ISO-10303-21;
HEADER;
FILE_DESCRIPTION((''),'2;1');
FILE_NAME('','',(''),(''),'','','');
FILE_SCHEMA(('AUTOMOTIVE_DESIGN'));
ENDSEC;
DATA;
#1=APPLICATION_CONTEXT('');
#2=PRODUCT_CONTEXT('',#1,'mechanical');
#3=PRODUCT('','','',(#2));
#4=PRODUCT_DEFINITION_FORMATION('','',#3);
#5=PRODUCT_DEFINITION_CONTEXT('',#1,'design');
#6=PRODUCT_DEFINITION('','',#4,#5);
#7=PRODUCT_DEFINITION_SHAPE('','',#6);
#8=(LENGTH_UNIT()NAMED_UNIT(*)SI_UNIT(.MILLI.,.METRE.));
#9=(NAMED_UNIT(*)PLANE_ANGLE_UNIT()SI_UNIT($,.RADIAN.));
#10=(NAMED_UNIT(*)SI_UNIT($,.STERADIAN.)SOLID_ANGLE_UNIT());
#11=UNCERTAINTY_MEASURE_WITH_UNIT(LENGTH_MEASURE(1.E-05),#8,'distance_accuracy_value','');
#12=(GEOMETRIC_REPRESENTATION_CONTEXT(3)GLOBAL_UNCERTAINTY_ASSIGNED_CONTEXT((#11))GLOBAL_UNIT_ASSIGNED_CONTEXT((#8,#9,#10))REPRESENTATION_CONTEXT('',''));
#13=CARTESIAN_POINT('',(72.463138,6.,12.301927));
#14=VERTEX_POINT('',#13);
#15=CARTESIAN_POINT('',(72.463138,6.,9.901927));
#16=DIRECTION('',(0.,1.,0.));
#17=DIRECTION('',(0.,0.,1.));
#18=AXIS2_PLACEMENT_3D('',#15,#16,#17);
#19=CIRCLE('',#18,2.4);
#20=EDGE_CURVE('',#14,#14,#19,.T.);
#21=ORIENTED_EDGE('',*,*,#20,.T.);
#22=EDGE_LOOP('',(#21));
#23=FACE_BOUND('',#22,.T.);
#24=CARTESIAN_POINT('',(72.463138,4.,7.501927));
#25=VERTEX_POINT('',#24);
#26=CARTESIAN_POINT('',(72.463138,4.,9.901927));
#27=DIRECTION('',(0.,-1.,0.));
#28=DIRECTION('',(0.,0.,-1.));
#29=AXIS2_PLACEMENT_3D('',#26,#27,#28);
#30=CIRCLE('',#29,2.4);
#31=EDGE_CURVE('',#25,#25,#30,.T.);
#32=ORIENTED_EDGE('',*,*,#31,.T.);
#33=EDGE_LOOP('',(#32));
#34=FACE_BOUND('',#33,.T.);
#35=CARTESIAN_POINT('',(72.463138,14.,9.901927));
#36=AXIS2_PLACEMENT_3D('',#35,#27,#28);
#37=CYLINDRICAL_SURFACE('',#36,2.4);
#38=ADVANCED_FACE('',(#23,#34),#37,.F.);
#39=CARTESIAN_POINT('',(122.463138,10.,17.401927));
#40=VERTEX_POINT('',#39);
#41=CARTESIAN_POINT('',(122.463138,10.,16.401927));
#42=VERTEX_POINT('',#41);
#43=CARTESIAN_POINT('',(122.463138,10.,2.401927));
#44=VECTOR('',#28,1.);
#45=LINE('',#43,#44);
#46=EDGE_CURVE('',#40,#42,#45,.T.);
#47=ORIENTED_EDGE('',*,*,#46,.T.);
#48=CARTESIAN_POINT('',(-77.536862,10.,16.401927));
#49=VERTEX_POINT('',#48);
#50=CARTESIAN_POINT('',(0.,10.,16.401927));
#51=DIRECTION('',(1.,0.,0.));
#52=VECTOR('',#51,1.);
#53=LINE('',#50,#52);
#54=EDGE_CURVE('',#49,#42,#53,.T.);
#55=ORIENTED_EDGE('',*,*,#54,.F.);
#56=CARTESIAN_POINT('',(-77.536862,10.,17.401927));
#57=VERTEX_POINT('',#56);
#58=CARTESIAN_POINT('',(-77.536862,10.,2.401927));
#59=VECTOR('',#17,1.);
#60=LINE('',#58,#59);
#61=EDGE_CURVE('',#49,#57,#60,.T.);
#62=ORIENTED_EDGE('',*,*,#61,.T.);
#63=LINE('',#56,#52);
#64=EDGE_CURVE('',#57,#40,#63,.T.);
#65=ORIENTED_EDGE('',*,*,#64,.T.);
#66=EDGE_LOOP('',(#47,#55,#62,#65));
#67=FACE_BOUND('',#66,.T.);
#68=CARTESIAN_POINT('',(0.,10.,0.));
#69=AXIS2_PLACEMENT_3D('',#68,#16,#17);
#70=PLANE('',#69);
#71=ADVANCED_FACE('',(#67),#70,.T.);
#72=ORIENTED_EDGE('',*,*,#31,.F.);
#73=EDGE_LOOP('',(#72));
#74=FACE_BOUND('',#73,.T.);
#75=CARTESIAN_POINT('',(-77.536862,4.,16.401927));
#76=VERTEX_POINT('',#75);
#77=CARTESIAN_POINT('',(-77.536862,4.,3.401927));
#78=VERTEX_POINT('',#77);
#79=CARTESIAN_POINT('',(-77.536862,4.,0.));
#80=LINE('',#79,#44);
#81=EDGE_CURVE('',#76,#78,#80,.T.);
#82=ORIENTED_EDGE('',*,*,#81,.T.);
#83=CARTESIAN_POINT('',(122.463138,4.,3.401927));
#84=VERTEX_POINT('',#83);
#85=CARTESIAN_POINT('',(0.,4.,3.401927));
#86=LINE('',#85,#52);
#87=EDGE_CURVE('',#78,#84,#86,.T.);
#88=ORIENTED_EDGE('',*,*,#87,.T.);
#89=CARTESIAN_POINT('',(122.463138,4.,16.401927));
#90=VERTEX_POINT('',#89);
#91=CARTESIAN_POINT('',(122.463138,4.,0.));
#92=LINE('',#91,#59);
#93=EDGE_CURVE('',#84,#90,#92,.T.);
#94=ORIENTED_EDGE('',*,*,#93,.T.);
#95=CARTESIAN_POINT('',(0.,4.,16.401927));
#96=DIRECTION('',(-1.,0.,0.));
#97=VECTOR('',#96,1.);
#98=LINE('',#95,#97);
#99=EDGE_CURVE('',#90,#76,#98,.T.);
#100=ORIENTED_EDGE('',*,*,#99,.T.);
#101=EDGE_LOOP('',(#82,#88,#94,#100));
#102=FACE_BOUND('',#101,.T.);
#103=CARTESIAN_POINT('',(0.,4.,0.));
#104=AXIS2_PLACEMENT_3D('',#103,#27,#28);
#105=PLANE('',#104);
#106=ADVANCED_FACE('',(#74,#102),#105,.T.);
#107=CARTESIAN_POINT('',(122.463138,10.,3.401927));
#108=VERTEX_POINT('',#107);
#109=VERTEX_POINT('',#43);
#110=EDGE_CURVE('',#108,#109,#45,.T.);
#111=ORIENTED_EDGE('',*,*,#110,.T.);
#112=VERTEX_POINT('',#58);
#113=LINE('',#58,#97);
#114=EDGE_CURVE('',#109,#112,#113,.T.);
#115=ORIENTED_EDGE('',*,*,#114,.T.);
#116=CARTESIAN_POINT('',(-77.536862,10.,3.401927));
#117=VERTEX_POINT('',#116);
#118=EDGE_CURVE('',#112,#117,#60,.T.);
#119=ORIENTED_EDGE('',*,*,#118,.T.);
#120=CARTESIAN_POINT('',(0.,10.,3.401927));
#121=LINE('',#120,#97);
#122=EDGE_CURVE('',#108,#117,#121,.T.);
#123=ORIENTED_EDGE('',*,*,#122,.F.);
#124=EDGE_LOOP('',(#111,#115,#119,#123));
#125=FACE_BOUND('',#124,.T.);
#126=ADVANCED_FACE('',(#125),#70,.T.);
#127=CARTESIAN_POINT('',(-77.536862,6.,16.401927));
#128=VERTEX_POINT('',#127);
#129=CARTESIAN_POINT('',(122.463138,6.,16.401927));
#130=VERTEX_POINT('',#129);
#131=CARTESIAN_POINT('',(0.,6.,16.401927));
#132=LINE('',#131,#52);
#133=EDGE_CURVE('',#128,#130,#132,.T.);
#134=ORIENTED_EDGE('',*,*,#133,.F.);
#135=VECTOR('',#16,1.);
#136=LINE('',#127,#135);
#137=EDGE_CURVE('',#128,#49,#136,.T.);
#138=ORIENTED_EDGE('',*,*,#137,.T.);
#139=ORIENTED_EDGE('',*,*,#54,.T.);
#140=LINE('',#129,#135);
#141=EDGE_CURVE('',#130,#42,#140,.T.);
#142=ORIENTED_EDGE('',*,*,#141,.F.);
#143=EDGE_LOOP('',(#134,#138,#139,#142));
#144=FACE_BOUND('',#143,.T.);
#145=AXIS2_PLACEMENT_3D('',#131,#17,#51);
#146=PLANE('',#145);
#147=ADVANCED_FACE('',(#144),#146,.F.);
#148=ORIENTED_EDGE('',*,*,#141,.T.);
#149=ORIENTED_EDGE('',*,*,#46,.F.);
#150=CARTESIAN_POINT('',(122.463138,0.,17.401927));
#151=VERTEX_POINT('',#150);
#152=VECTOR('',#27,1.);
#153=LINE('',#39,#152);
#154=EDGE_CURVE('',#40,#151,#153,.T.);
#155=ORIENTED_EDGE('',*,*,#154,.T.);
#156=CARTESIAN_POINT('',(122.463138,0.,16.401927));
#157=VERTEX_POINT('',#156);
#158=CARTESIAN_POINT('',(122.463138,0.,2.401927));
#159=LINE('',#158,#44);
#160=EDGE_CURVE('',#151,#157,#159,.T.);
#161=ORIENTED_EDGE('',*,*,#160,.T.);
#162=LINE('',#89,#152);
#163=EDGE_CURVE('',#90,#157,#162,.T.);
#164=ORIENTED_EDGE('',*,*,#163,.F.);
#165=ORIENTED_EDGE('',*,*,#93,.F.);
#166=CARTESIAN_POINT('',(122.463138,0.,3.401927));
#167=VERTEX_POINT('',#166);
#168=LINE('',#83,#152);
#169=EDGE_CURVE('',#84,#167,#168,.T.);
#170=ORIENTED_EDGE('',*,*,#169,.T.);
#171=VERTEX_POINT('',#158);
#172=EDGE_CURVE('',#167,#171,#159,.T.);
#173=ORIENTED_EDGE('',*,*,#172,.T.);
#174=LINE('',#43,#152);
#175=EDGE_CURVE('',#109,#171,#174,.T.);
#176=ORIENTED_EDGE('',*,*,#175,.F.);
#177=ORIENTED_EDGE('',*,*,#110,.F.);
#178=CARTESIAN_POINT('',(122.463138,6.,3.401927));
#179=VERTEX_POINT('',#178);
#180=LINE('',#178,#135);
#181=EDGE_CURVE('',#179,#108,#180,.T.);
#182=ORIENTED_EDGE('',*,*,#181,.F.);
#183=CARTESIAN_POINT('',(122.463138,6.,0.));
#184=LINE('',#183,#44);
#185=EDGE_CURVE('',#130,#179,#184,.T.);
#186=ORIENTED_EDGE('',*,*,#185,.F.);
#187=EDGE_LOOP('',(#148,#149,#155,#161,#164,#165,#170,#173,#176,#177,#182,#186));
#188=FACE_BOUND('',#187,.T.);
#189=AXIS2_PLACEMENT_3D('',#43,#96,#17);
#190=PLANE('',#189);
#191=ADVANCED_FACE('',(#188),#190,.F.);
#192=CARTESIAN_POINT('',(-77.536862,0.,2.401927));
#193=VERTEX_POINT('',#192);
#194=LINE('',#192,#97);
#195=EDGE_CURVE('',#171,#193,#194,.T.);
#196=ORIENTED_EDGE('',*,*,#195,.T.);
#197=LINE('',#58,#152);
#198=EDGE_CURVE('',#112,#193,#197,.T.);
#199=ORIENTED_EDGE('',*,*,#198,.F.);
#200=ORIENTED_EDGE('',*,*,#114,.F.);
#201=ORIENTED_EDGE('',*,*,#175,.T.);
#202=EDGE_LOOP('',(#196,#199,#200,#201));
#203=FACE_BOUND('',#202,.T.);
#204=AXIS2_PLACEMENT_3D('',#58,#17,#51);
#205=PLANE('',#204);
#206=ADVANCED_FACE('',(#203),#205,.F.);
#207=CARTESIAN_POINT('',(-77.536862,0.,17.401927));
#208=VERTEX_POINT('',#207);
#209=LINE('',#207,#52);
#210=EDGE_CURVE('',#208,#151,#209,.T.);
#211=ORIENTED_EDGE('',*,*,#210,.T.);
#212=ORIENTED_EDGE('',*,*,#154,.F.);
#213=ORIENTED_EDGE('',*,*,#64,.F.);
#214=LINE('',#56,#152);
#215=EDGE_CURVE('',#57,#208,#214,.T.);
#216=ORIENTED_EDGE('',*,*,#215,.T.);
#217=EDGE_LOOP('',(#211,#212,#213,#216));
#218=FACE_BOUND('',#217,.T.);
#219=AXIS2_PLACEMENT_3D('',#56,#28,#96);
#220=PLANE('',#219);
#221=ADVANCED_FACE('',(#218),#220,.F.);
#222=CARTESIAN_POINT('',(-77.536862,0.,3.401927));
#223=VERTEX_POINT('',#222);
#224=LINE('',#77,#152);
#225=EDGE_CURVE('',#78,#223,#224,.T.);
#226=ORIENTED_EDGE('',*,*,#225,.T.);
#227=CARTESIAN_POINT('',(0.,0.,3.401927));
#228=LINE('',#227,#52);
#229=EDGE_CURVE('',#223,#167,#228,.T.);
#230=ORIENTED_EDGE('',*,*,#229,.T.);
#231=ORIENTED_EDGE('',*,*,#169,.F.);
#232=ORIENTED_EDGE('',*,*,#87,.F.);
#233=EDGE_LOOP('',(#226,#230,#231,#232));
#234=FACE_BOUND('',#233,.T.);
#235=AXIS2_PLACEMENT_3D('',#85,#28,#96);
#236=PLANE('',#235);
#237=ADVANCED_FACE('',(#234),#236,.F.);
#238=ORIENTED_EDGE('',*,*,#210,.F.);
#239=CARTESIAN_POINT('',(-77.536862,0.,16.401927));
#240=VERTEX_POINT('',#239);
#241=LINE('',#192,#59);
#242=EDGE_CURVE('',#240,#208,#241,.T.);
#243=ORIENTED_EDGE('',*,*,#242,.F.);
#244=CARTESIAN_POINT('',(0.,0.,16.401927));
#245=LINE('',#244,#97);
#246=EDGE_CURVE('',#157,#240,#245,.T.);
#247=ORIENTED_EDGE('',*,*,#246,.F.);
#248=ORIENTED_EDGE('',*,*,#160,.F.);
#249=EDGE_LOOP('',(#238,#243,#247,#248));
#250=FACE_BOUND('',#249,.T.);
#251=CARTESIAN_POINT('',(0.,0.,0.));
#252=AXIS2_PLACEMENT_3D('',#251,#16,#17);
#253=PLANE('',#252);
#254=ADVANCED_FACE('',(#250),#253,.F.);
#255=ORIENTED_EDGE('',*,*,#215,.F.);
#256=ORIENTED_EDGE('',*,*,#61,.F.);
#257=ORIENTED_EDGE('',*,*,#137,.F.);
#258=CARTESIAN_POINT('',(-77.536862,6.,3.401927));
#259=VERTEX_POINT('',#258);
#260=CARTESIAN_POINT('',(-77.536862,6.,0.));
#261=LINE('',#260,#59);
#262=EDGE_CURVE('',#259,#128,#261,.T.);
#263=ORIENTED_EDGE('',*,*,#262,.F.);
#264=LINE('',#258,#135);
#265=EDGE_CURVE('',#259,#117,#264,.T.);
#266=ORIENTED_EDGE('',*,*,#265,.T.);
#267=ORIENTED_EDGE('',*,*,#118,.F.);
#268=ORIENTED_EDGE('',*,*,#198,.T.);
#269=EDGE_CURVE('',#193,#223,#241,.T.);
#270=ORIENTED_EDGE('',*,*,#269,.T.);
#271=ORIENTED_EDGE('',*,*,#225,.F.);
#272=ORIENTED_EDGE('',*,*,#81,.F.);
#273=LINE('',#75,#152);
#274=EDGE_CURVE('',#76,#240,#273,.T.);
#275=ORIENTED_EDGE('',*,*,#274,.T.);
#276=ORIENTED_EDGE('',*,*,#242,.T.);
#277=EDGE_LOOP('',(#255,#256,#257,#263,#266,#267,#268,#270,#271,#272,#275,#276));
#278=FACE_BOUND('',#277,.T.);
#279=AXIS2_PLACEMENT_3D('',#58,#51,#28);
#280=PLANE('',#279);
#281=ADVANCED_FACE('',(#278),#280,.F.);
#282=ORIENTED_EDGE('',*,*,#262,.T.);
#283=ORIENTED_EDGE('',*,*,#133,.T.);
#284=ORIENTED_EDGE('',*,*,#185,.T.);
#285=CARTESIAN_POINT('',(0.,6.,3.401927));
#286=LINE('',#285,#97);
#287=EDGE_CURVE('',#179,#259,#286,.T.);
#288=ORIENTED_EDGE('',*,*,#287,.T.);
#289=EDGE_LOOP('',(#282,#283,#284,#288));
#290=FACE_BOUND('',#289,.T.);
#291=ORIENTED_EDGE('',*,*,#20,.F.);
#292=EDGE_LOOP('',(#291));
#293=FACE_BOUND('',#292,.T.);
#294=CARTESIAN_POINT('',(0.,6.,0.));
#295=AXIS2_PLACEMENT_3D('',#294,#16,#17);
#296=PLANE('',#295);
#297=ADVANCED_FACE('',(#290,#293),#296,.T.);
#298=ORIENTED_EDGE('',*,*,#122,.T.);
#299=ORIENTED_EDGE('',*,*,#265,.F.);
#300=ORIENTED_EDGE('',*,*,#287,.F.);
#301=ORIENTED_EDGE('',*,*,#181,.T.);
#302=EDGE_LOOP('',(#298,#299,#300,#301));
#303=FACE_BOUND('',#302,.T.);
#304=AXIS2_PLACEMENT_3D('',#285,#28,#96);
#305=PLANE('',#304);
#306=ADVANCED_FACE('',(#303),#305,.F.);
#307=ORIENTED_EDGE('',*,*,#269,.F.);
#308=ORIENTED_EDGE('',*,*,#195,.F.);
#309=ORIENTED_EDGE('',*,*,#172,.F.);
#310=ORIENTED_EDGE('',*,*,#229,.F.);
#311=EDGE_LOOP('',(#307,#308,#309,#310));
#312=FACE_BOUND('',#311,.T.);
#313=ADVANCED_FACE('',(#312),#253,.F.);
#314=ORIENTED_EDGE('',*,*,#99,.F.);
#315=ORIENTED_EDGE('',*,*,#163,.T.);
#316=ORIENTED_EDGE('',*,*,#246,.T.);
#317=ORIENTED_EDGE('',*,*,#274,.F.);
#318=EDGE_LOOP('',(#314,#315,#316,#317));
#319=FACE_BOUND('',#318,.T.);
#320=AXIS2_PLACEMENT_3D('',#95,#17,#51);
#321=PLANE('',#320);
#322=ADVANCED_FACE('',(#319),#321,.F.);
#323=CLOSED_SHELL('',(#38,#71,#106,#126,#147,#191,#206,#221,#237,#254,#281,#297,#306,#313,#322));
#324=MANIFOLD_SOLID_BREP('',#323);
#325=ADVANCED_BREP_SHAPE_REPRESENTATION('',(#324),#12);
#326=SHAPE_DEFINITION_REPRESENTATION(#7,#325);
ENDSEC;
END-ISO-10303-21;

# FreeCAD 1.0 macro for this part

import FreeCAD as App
import Part
import Sketcher

V = App.Vector


def add_polygon(sketch, points):
    """Adds a closed chain of lines whose ends are joined by coincident constraints."""
    first, n = sketch.GeometryCount, len(points)
    for a, b in zip(points, points[1:] + points[:1]):
        sketch.addGeometry(Part.LineSegment(App.Vector(*a, 0), App.Vector(*b, 0)), False)
    for i in range(n):
        sketch.addConstraint(Sketcher.Constraint("Coincident", first + i, 2, first + (i + 1) % n, 1))

doc = App.newDocument("Part")
body = doc.addObject("PartDesign::Body", "Body")

sketch1 = doc.addObject("Sketcher::SketchObject", "Sketch")
body.addObject(sketch1)
sketch1.AttachmentSupport = (doc.XZ_Plane, [""])
sketch1.MapMode = "FlatFace"
add_polygon(sketch1, [(-77.536862, 2.401927), (-77.536862, 17.401927), (122.463138, 17.401927), (122.463138, 2.401927)])
sketch1.addConstraint([
    Sketcher.Constraint("Vertical", 0),
    Sketcher.Constraint("Horizontal", 1),
    Sketcher.Constraint("Vertical", 2),
    Sketcher.Constraint("Horizontal", 3),
    Sketcher.Constraint("DistanceX", 1, 1, 1, 2, 200.0),
    Sketcher.Constraint("DistanceY", 0, 1, 0, 2, 15.0),
    Sketcher.Constraint("DistanceX", 0, 2, -1, 1, 77.536862),
    Sketcher.Constraint("DistanceY", -1, 1, 0, 2, 17.401927),
])
pad1 = doc.addObject("PartDesign::Pad", "Pad")
body.addObject(pad1)
pad1.Profile = sketch1
pad1.Length = 10
pad1.Reversed = True

sketch2 = doc.addObject("Sketcher::SketchObject", "Sketch001")
body.addObject(sketch2)
sketch2.AttachmentSupport = (doc.XZ_Plane, [""])
sketch2.MapMode = "FlatFace"
sketch2.AttachmentOffset = App.Placement(V(0, 0, -10), App.Rotation())
add_polygon(sketch2, [(-77.536862, 16.401927), (122.463138, 16.401927), (122.463138, 3.401927), (-77.536862, 3.401927)])
sketch2.addConstraint([
    Sketcher.Constraint("Horizontal", 0),
    Sketcher.Constraint("Vertical", 1),
    Sketcher.Constraint("Horizontal", 2),
    Sketcher.Constraint("Vertical", 3),
    Sketcher.Constraint("DistanceX", 0, 1, 0, 2, 200.0),
    Sketcher.Constraint("DistanceY", 1, 2, 1, 1, 13.0),
    Sketcher.Constraint("DistanceX", -1, 1, 0, 2, 122.463138),
    Sketcher.Constraint("DistanceY", -1, 1, 0, 2, 16.401927),
])
pocket1 = doc.addObject("PartDesign::Pocket", "Pocket")
body.addObject(pocket1)
pocket1.Profile = sketch2
pocket1.Length = 4
pocket1.Reversed = True

sketch3 = doc.addObject("Sketcher::SketchObject", "Sketch002")
body.addObject(sketch3)
sketch3.AttachmentSupport = (doc.XZ_Plane, [""])
sketch3.MapMode = "FlatFace"
add_polygon(sketch3, [(-77.536862, 16.401927), (-77.536862, 3.401927), (122.463138, 3.401927), (122.463138, 16.401927)])
sketch3.addConstraint([
    Sketcher.Constraint("Vertical", 0),
    Sketcher.Constraint("Horizontal", 1),
    Sketcher.Constraint("Vertical", 2),
    Sketcher.Constraint("Horizontal", 3),
    Sketcher.Constraint("DistanceX", 1, 1, 1, 2, 200.0),
    Sketcher.Constraint("DistanceY", 0, 2, 0, 1, 13.0),
    Sketcher.Constraint("DistanceX", 0, 2, -1, 1, 77.536862),
    Sketcher.Constraint("DistanceY", -1, 1, 0, 2, 3.401927),
])
pocket2 = doc.addObject("PartDesign::Pocket", "Pocket001")
body.addObject(pocket2)
pocket2.Profile = sketch3
pocket2.Length = 4

sketch4 = doc.addObject("Sketcher::SketchObject", "Sketch003")
body.addObject(sketch4)
sketch4.AttachmentSupport = (doc.XZ_Plane, [""])
sketch4.MapMode = "FlatFace"
sketch4.AttachmentOffset = App.Placement(V(0, 0, -4), App.Rotation())
sketch4.addGeometry(Part.Circle(V(72.463138, 9.901927, 0), V(0, 0, 1), 2.4), False)
sketch4.addConstraint([
    Sketcher.Constraint("Diameter", 0, 4.8),
    Sketcher.Constraint("DistanceX", -1, 1, 0, 3, 72.463138),
    Sketcher.Constraint("DistanceY", -1, 1, 0, 3, 9.901927),
])
pocket3 = doc.addObject("PartDesign::Pocket", "Pocket002")
body.addObject(pocket3)
pocket3.Profile = sketch4
pocket3.Length = 10

doc.recompute()
